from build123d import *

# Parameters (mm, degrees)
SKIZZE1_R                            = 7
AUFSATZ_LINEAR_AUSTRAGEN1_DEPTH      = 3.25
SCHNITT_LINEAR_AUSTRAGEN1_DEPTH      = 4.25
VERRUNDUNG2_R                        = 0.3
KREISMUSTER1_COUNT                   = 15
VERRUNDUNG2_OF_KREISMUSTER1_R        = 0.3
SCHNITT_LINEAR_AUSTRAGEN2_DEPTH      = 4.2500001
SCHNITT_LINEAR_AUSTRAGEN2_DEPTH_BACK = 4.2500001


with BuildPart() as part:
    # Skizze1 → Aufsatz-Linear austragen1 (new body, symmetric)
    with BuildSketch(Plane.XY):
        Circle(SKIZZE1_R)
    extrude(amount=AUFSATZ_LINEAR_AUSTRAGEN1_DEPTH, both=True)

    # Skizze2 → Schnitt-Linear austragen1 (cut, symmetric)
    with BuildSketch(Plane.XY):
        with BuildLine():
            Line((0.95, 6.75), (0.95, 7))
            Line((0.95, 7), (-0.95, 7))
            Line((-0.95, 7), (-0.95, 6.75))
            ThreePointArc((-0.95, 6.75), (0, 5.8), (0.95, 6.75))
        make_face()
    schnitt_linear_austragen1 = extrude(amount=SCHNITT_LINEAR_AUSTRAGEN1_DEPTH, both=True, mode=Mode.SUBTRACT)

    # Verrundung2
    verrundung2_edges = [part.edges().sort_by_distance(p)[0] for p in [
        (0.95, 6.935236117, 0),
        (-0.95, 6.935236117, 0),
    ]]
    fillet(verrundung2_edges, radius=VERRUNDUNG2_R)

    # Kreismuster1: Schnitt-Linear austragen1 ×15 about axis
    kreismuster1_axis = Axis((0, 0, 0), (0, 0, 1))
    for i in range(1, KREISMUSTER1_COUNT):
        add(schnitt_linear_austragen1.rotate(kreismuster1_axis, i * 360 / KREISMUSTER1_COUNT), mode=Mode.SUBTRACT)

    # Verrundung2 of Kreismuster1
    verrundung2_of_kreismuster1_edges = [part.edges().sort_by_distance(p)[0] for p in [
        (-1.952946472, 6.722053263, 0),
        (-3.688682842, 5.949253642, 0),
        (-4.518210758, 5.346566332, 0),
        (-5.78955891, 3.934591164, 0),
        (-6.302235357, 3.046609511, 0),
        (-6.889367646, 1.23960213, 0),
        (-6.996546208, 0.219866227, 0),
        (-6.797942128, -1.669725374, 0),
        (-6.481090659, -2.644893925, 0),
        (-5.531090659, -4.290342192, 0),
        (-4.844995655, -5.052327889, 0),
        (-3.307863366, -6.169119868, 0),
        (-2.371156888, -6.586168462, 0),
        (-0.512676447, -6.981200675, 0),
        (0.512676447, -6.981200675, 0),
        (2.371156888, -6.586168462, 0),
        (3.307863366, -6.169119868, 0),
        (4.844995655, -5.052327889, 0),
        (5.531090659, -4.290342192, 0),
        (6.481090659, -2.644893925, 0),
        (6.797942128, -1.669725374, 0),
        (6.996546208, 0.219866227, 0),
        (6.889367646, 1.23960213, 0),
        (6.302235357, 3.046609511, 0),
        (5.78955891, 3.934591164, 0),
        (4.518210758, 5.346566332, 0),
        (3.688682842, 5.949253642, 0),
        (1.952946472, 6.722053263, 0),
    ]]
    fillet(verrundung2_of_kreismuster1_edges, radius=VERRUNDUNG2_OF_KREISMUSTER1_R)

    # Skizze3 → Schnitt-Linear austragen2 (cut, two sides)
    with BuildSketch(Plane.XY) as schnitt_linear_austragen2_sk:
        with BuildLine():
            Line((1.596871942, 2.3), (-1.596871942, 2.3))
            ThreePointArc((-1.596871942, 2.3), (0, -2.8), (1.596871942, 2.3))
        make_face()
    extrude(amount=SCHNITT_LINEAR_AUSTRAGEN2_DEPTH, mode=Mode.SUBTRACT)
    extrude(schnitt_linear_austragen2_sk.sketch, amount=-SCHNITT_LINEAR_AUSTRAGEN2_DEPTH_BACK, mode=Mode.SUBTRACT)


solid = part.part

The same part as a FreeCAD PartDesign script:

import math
import FreeCAD as App
import Part
import Sketcher
from FreeCAD import Vector
Q = App.Units.Quantity


def edges_at(feature, points):
    """Names of the edges that pass closest to the given points."""
    edges = feature.Shape.Edges
    near = lambda p: min(range(len(edges)), key=lambda i: edges[i].distToShape(Part.Vertex(*p))[0])
    return sorted({f"Edge{near(p) + 1}" for p in points})

doc = App.newDocument("Part")
params = doc.addObject("Spreadsheet::Sheet", "Params")
for row, (alias, value) in enumerate([
    ("sketch1_diameter", "14 mm"),
    ("pad1_length", "6.5 mm"),
    ("sketch2_radius", "0.95 mm"),
    ("sketch2_height", "0.25 mm"),
    ("pocket1_length", "8.5 mm"),
    ("fillet_radius", "0.3 mm"),
    ("fillet2_radius", "0.3 mm"),
    ("sketch3_radius", "2.8 mm"),
], start=1):
    params.set(f"A{row}", alias)
    params.set(f"B{row}", "=" + value)
    params.setAlias(f"B{row}", alias)

body = doc.addObject("PartDesign::Body", "Body")

# Sketch on XY plane
sketch1 = body.newObject("Sketcher::SketchObject", "Sketch")
sketch1.AttachmentSupport = (doc.getObject("XY_Plane"), [""])
sketch1.MapMode = "FlatFace"
sketch1.addGeometry(Part.Circle(Vector(0, 0, 0), Vector(0, 0, 1), 7), False)
sketch1.addConstraint([
    Sketcher.Constraint("Coincident", 0, 3, -1, 1),
    Sketcher.Constraint("Diameter", 0, Q("14 mm")),
])
sketch1.setExpression("Constraints[1]", "Params.sketch1_diameter")
pad1 = body.newObject("PartDesign::Pad", "Pad")
pad1.Profile = sketch1
pad1.setExpression("Length", "Params.pad1_length")
pad1.Midplane = True

# Sketch on XY plane
sketch2 = body.newObject("Sketcher::SketchObject", "Sketch001")
sketch2.AttachmentSupport = (doc.getObject("XY_Plane"), [""])
sketch2.MapMode = "FlatFace"
sketch2.addGeometry([
    Part.LineSegment(Vector(0.95, 6.75, 0), Vector(0.95, 7, 0)),
    Part.LineSegment(Vector(0.95, 7, 0), Vector(-0.95, 7, 0)),
    Part.LineSegment(Vector(-0.95, 7, 0), Vector(-0.95, 6.75, 0)),
    Part.ArcOfCircle(Part.Circle(Vector(0, 6.75, 0), Vector(0, 0, 1), 0.95), math.radians(180), math.radians(360)),
], False)
sketch2.addConstraint([
    Sketcher.Constraint("Coincident", 0, 2, 1, 1),
    Sketcher.Constraint("Coincident", 1, 2, 2, 1),
    Sketcher.Constraint("Tangent", 2, 2, 3, 1),
    Sketcher.Constraint("Tangent", 3, 2, 0, 1),
    Sketcher.Constraint("Vertical", 0),
    Sketcher.Constraint("Horizontal", 1),
    Sketcher.Constraint("Vertical", 2),
    Sketcher.Constraint("PointOnObject", 3, 3, -2),
    Sketcher.Constraint("Radius", 3, Q("0.95 mm")),
    Sketcher.Constraint("DistanceY", -1, 1, 0, 2, Q("7 mm")),
    Sketcher.Constraint("DistanceY", 0, 1, 0, 2, Q("0.25 mm")),
])
sketch2.setExpression("Constraints[8]", "Params.sketch2_radius")
sketch2.setExpression("Constraints[10]", "Params.sketch2_height")
pocket1 = body.newObject("PartDesign::Pocket", "Pocket")
pocket1.Profile = sketch2
pocket1.setExpression("Length", "Params.pocket1_length")
pocket1.Midplane = True
doc.recompute()

fillet = body.newObject("PartDesign::Fillet", "Fillet")
fillet.Base = (pocket1, edges_at(pocket1, [(0.95, 6.935, 0), (-0.95, 6.935, 0)]))
fillet.setExpression("Radius", "Params.fillet_radius")
doc.recompute()

polarpattern = body.newObject("PartDesign::PolarPattern", "PolarPattern")
polarpattern.Originals = [pocket1]
polarpattern.Axis = (doc.getObject("Z_Axis"), [""])
polarpattern.Angle = 360
polarpattern.Occurrences = 15
body.Tip = polarpattern
doc.recompute()

fillet2 = body.newObject("PartDesign::Fillet", "Fillet001")
fillet2.Base = (polarpattern, edges_at(polarpattern, [
    (-1.953, 6.722, 0),
    (-3.689, 5.949, 0),
    (-4.518, 5.347, 0),
    (-5.79, 3.935, 0),
    (-6.302, 3.047, 0),
    (-6.889, 1.24, 0),
    (-6.997, 0.22, 0),
    (-6.798, -1.67, 0),
    (-6.481, -2.645, 0),
    (-5.531, -4.29, 0),
    (-4.845, -5.052, 0),
    (-3.308, -6.169, 0),
    (-2.371, -6.586, 0),
    (-0.513, -6.981, 0),
    (0.513, -6.981, 0),
    (2.371, -6.586, 0),
    (3.308, -6.169, 0),
    (4.845, -5.052, 0),
    (5.531, -4.29, 0),
    (6.481, -2.645, 0),
    (6.798, -1.67, 0),
    (6.997, 0.22, 0),
    (6.889, 1.24, 0),
    (6.302, 3.047, 0),
    (5.79, 3.935, 0),
    (4.518, 5.347, 0),
    (3.689, 5.949, 0),
    (1.953, 6.722, 0),
]))
fillet2.setExpression("Radius", "Params.fillet2_radius")

# Sketch on XY plane
sketch3 = body.newObject("Sketcher::SketchObject", "Sketch002")
sketch3.AttachmentSupport = (doc.getObject("XY_Plane"), [""])
sketch3.MapMode = "FlatFace"
sketch3.addGeometry([
    Part.LineSegment(Vector(1.596872, 2.3, 0), Vector(-1.596872, 2.3, 0)),
    Part.ArcOfCircle(Part.Circle(Vector(0, 0, 0), Vector(0, 0, 1), 2.8), math.radians(124.771944), math.radians(415.228056)),
], False)
sketch3.addConstraint([
    Sketcher.Constraint("Coincident", 0, 1, 1, 2),
    Sketcher.Constraint("Coincident", 1, 1, 0, 2),
    Sketcher.Constraint("Horizontal", 0),
    Sketcher.Constraint("Coincident", 1, 3, -1, 1),
    Sketcher.Constraint("Radius", 1, Q("2.8 mm")),
    Sketcher.Constraint("DistanceY", -1, 1, 0, 1, Q("2.3 mm")),
])
sketch3.setExpression("Constraints[4]", "Params.sketch3_radius")
pocket2 = body.newObject("PartDesign::Pocket", "Pocket001")
pocket2.Profile = sketch3
pocket2.Type = "ThroughAll"
pocket2.Midplane = True

doc.recompute()
